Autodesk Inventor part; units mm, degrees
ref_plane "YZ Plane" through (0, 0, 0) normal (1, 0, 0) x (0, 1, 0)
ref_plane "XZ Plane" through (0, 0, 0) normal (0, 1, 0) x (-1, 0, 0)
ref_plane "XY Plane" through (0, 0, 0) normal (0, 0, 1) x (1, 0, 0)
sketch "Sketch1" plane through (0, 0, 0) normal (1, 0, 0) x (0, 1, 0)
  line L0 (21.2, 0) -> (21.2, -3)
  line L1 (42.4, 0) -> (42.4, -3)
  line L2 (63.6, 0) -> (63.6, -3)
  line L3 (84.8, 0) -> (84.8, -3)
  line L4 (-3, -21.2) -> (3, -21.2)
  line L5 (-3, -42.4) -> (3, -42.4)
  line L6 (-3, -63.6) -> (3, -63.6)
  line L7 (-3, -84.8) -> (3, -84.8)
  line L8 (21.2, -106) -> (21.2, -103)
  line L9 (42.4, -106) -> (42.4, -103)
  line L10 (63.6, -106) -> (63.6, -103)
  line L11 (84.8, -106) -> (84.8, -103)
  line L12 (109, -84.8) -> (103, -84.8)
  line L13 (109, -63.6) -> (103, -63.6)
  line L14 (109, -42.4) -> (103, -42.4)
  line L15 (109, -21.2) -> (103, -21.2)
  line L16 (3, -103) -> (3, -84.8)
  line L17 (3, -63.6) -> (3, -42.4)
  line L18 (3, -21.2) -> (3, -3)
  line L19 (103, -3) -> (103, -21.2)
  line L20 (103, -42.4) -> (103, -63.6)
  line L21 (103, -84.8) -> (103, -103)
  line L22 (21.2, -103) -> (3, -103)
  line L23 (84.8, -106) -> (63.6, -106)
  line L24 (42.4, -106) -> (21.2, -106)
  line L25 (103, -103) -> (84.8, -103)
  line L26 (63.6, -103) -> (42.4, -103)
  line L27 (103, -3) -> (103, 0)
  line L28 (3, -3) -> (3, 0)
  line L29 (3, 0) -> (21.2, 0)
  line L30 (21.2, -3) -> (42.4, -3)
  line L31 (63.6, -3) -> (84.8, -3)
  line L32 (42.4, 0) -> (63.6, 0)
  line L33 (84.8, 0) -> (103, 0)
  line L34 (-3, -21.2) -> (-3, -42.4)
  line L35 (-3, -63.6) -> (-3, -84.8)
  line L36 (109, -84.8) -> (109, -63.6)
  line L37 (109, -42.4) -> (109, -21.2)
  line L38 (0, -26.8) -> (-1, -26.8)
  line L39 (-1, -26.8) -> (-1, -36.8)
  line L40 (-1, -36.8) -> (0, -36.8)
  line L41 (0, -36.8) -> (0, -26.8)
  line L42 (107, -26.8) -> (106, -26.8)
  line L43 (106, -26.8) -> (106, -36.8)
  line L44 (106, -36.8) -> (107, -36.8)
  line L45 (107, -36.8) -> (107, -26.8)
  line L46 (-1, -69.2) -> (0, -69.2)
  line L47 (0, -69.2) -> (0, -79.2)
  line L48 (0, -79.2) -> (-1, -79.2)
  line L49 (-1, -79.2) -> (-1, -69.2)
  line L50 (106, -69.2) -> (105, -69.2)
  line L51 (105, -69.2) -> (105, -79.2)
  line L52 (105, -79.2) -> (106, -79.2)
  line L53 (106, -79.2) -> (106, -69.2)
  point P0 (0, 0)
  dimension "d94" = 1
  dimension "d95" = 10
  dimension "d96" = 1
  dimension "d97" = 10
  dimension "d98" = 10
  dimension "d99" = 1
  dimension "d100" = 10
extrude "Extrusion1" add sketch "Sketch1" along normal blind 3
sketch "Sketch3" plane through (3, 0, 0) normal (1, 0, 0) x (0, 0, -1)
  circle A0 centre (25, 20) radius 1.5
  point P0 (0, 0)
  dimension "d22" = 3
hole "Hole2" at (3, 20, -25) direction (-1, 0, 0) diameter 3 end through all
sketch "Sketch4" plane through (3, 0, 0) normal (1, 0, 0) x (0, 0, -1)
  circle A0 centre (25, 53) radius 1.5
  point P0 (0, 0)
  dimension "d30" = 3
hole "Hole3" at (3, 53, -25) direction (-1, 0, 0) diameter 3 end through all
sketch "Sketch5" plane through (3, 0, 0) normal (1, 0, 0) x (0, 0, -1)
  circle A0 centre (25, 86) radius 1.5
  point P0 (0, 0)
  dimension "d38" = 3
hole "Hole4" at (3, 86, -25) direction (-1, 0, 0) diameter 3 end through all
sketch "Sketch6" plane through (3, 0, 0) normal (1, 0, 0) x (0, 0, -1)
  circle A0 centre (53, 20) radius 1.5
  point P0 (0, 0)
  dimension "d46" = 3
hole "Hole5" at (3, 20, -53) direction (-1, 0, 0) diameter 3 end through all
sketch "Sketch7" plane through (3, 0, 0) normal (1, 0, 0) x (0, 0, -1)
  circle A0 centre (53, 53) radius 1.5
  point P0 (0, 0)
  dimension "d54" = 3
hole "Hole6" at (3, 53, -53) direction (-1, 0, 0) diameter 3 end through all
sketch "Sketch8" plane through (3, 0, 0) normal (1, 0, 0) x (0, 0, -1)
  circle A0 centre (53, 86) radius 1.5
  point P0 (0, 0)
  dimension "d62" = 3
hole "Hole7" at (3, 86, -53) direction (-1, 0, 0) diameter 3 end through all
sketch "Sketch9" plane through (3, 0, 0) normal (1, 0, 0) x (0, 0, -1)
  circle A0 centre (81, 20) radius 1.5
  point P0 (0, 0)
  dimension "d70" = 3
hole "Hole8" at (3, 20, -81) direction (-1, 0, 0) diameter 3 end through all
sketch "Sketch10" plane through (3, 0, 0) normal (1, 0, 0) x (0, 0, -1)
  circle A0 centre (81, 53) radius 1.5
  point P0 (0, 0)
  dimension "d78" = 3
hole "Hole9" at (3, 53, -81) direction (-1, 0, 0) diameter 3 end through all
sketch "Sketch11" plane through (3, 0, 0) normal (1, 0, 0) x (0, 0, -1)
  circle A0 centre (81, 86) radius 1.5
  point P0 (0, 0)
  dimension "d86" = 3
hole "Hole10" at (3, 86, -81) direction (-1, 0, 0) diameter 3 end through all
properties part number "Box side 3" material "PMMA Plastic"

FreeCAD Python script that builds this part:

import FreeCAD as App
import Part
import Sketcher

V = App.Vector

doc = App.newDocument("Part")
body = doc.addObject("PartDesign::Body", "Body")

sketch1 = body.newObject("Sketcher::SketchObject", "Sketch")
sketch1.AttachmentSupport = (doc.getObject("YZ_Plane"), [""])
sketch1.MapMode = "FlatFace"
sketch1.addGeometry(Part.LineSegment(V(21.2, -3, 0), V(21.2, 0, 0)), False)
sketch1.addGeometry(Part.LineSegment(V(21.2, 0, 0), V(3, 0, 0)), False)
sketch1.addGeometry(Part.LineSegment(V(3, 0, 0), V(3, -21.2, 0)), False)
sketch1.addGeometry(Part.LineSegment(V(3, -21.2, 0), V(-3, -21.2, 0)), False)
sketch1.addGeometry(Part.LineSegment(V(-3, -21.2, 0), V(-3, -42.4, 0)), False)
sketch1.addGeometry(Part.LineSegment(V(-3, -42.4, 0), V(3, -42.4, 0)), False)
sketch1.addGeometry(Part.LineSegment(V(3, -42.4, 0), V(3, -63.6, 0)), False)
sketch1.addGeometry(Part.LineSegment(V(3, -63.6, 0), V(-3, -63.6, 0)), False)
sketch1.addGeometry(Part.LineSegment(V(-3, -63.6, 0), V(-3, -84.8, 0)), False)
sketch1.addGeometry(Part.LineSegment(V(-3, -84.8, 0), V(3, -84.8, 0)), False)
sketch1.addGeometry(Part.LineSegment(V(3, -84.8, 0), V(3, -103, 0)), False)
sketch1.addGeometry(Part.LineSegment(V(3, -103, 0), V(21.2, -103, 0)), False)
sketch1.addGeometry(Part.LineSegment(V(21.2, -103, 0), V(21.2, -106, 0)), False)
sketch1.addGeometry(Part.LineSegment(V(21.2, -106, 0), V(42.4, -106, 0)), False)
sketch1.addGeometry(Part.LineSegment(V(42.4, -106, 0), V(42.4, -103, 0)), False)
sketch1.addGeometry(Part.LineSegment(V(42.4, -103, 0), V(63.6, -103, 0)), False)
sketch1.addGeometry(Part.LineSegment(V(63.6, -103, 0), V(63.6, -106, 0)), False)
sketch1.addGeometry(Part.LineSegment(V(63.6, -106, 0), V(84.8, -106, 0)), False)
sketch1.addGeometry(Part.LineSegment(V(84.8, -106, 0), V(84.8, -103, 0)), False)
sketch1.addGeometry(Part.LineSegment(V(84.8, -103, 0), V(103, -103, 0)), False)
sketch1.addGeometry(Part.LineSegment(V(103, -103, 0), V(103, -84.8, 0)), False)
sketch1.addGeometry(Part.LineSegment(V(103, -84.8, 0), V(109, -84.8, 0)), False)
sketch1.addGeometry(Part.LineSegment(V(109, -84.8, 0), V(109, -63.6, 0)), False)
sketch1.addGeometry(Part.LineSegment(V(109, -63.6, 0), V(103, -63.6, 0)), False)
sketch1.addGeometry(Part.LineSegment(V(103, -63.6, 0), V(103, -42.4, 0)), False)
sketch1.addGeometry(Part.LineSegment(V(103, -42.4, 0), V(109, -42.4, 0)), False)
sketch1.addGeometry(Part.LineSegment(V(109, -42.4, 0), V(109, -21.2, 0)), False)
sketch1.addGeometry(Part.LineSegment(V(109, -21.2, 0), V(103, -21.2, 0)), False)
sketch1.addGeometry(Part.LineSegment(V(103, -21.2, 0), V(103, 0, 0)), False)
sketch1.addGeometry(Part.LineSegment(V(103, 0, 0), V(84.8, 0, 0)), False)
sketch1.addGeometry(Part.LineSegment(V(84.8, 0, 0), V(84.8, -3, 0)), False)
sketch1.addGeometry(Part.LineSegment(V(84.8, -3, 0), V(63.6, -3, 0)), False)
sketch1.addGeometry(Part.LineSegment(V(63.6, -3, 0), V(63.6, 0, 0)), False)
sketch1.addGeometry(Part.LineSegment(V(63.6, 0, 0), V(42.4, 0, 0)), False)
sketch1.addGeometry(Part.LineSegment(V(42.4, 0, 0), V(42.4, -3, 0)), False)
sketch1.addGeometry(Part.LineSegment(V(42.4, -3, 0), V(21.2, -3, 0)), False)
sketch1.addGeometry(Part.LineSegment(V(-1, -79.2, 0), V(-1, -69.2, 0)), False)
sketch1.addGeometry(Part.LineSegment(V(-1, -69.2, 0), V(0, -69.2, 0)), False)
sketch1.addGeometry(Part.LineSegment(V(0, -69.2, 0), V(0, -79.2, 0)), False)
sketch1.addGeometry(Part.LineSegment(V(0, -79.2, 0), V(-1, -79.2, 0)), False)
sketch1.addGeometry(Part.LineSegment(V(105, -69.2, 0), V(106, -69.2, 0)), False)
sketch1.addGeometry(Part.LineSegment(V(106, -69.2, 0), V(106, -79.2, 0)), False)
sketch1.addGeometry(Part.LineSegment(V(106, -79.2, 0), V(105, -79.2, 0)), False)
sketch1.addGeometry(Part.LineSegment(V(105, -79.2, 0), V(105, -69.2, 0)), False)
sketch1.addGeometry(Part.LineSegment(V(-1, -26.8, 0), V(0, -26.8, 0)), False)
sketch1.addGeometry(Part.LineSegment(V(0, -26.8, 0), V(0, -36.8, 0)), False)
sketch1.addGeometry(Part.LineSegment(V(0, -36.8, 0), V(-1, -36.8, 0)), False)
sketch1.addGeometry(Part.LineSegment(V(-1, -36.8, 0), V(-1, -26.8, 0)), False)
sketch1.addGeometry(Part.LineSegment(V(106, -26.8, 0), V(107, -26.8, 0)), False)
sketch1.addGeometry(Part.LineSegment(V(107, -26.8, 0), V(107, -36.8, 0)), False)
sketch1.addGeometry(Part.LineSegment(V(107, -36.8, 0), V(106, -36.8, 0)), False)
sketch1.addGeometry(Part.LineSegment(V(106, -36.8, 0), V(106, -26.8, 0)), False)
sketch1.addConstraint(Sketcher.Constraint("Coincident", 0, 2, 1, 1))
sketch1.addConstraint(Sketcher.Constraint("Coincident", 1, 2, 2, 1))
sketch1.addConstraint(Sketcher.Constraint("Coincident", 2, 2, 3, 1))
sketch1.addConstraint(Sketcher.Constraint("Coincident", 3, 2, 4, 1))
sketch1.addConstraint(Sketcher.Constraint("Coincident", 4, 2, 5, 1))
sketch1.addConstraint(Sketcher.Constraint("Coincident", 5, 2, 6, 1))
sketch1.addConstraint(Sketcher.Constraint("Coincident", 6, 2, 7, 1))
sketch1.addConstraint(Sketcher.Constraint("Coincident", 7, 2, 8, 1))
sketch1.addConstraint(Sketcher.Constraint("Coincident", 8, 2, 9, 1))
sketch1.addConstraint(Sketcher.Constraint("Coincident", 9, 2, 10, 1))
sketch1.addConstraint(Sketcher.Constraint("Coincident", 10, 2, 11, 1))
sketch1.addConstraint(Sketcher.Constraint("Coincident", 11, 2, 12, 1))
sketch1.addConstraint(Sketcher.Constraint("Coincident", 12, 2, 13, 1))
sketch1.addConstraint(Sketcher.Constraint("Coincident", 13, 2, 14, 1))
sketch1.addConstraint(Sketcher.Constraint("Coincident", 14, 2, 15, 1))
sketch1.addConstraint(Sketcher.Constraint("Coincident", 15, 2, 16, 1))
sketch1.addConstraint(Sketcher.Constraint("Coincident", 16, 2, 17, 1))
sketch1.addConstraint(Sketcher.Constraint("Coincident", 17, 2, 18, 1))
sketch1.addConstraint(Sketcher.Constraint("Coincident", 18, 2, 19, 1))
sketch1.addConstraint(Sketcher.Constraint("Coincident", 19, 2, 20, 1))
sketch1.addConstraint(Sketcher.Constraint("Coincident", 20, 2, 21, 1))
sketch1.addConstraint(Sketcher.Constraint("Coincident", 21, 2, 22, 1))
sketch1.addConstraint(Sketcher.Constraint("Coincident", 22, 2, 23, 1))
sketch1.addConstraint(Sketcher.Constraint("Coincident", 23, 2, 24, 1))
sketch1.addConstraint(Sketcher.Constraint("Coincident", 24, 2, 25, 1))
sketch1.addConstraint(Sketcher.Constraint("Coincident", 25, 2, 26, 1))
sketch1.addConstraint(Sketcher.Constraint("Coincident", 26, 2, 27, 1))
sketch1.addConstraint(Sketcher.Constraint("Coincident", 27, 2, 28, 1))
sketch1.addConstraint(Sketcher.Constraint("Coincident", 28, 2, 29, 1))
sketch1.addConstraint(Sketcher.Constraint("Coincident", 29, 2, 30, 1))
sketch1.addConstraint(Sketcher.Constraint("Coincident", 30, 2, 31, 1))
sketch1.addConstraint(Sketcher.Constraint("Coincident", 31, 2, 32, 1))
sketch1.addConstraint(Sketcher.Constraint("Coincident", 32, 2, 33, 1))
sketch1.addConstraint(Sketcher.Constraint("Coincident", 33, 2, 34, 1))
sketch1.addConstraint(Sketcher.Constraint("Coincident", 34, 2, 35, 1))
sketch1.addConstraint(Sketcher.Constraint("Coincident", 35, 2, 0, 1))
sketch1.addConstraint(Sketcher.Constraint("Coincident", 36, 2, 37, 1))
sketch1.addConstraint(Sketcher.Constraint("Coincident", 37, 2, 38, 1))
sketch1.addConstraint(Sketcher.Constraint("Coincident", 38, 2, 39, 1))
sketch1.addConstraint(Sketcher.Constraint("Coincident", 39, 2, 36, 1))
sketch1.addConstraint(Sketcher.Constraint("Coincident", 40, 2, 41, 1))
sketch1.addConstraint(Sketcher.Constraint("Coincident", 41, 2, 42, 1))
sketch1.addConstraint(Sketcher.Constraint("Coincident", 42, 2, 43, 1))
sketch1.addConstraint(Sketcher.Constraint("Coincident", 43, 2, 40, 1))
sketch1.addConstraint(Sketcher.Constraint("Coincident", 44, 2, 45, 1))
sketch1.addConstraint(Sketcher.Constraint("Coincident", 45, 2, 46, 1))
sketch1.addConstraint(Sketcher.Constraint("Coincident", 46, 2, 47, 1))
sketch1.addConstraint(Sketcher.Constraint("Coincident", 47, 2, 44, 1))
sketch1.addConstraint(Sketcher.Constraint("Coincident", 48, 2, 49, 1))
sketch1.addConstraint(Sketcher.Constraint("Coincident", 49, 2, 50, 1))
sketch1.addConstraint(Sketcher.Constraint("Coincident", 50, 2, 51, 1))
sketch1.addConstraint(Sketcher.Constraint("Coincident", 51, 2, 48, 1))
sketch1.addConstraint(Sketcher.Constraint("Vertical", 0))
sketch1.addConstraint(Sketcher.Constraint("Horizontal", 1))
sketch1.addConstraint(Sketcher.Constraint("Vertical", 2))
sketch1.addConstraint(Sketcher.Constraint("Horizontal", 3))
sketch1.addConstraint(Sketcher.Constraint("Vertical", 4))
sketch1.addConstraint(Sketcher.Constraint("Horizontal", 5))
sketch1.addConstraint(Sketcher.Constraint("Vertical", 6))
sketch1.addConstraint(Sketcher.Constraint("Horizontal", 7))
sketch1.addConstraint(Sketcher.Constraint("Vertical", 8))
sketch1.addConstraint(Sketcher.Constraint("Horizontal", 9))
sketch1.addConstraint(Sketcher.Constraint("Vertical", 10))
sketch1.addConstraint(Sketcher.Constraint("Horizontal", 11))
sketch1.addConstraint(Sketcher.Constraint("Vertical", 12))
sketch1.addConstraint(Sketcher.Constraint("Horizontal", 13))
sketch1.addConstraint(Sketcher.Constraint("Vertical", 14))
sketch1.addConstraint(Sketcher.Constraint("Horizontal", 15))
sketch1.addConstraint(Sketcher.Constraint("Vertical", 16))
sketch1.addConstraint(Sketcher.Constraint("Horizontal", 17))
sketch1.addConstraint(Sketcher.Constraint("Vertical", 18))
sketch1.addConstraint(Sketcher.Constraint("Horizontal", 19))
sketch1.addConstraint(Sketcher.Constraint("Vertical", 20))
sketch1.addConstraint(Sketcher.Constraint("Horizontal", 21))
sketch1.addConstraint(Sketcher.Constraint("Vertical", 22))
sketch1.addConstraint(Sketcher.Constraint("Horizontal", 23))
sketch1.addConstraint(Sketcher.Constraint("Vertical", 24))
sketch1.addConstraint(Sketcher.Constraint("Horizontal", 25))
sketch1.addConstraint(Sketcher.Constraint("Vertical", 26))
sketch1.addConstraint(Sketcher.Constraint("Horizontal", 27))
sketch1.addConstraint(Sketcher.Constraint("Vertical", 28))
sketch1.addConstraint(Sketcher.Constraint("Horizontal", 29))
sketch1.addConstraint(Sketcher.Constraint("Vertical", 30))
sketch1.addConstraint(Sketcher.Constraint("Horizontal", 31))
sketch1.addConstraint(Sketcher.Constraint("Vertical", 32))
sketch1.addConstraint(Sketcher.Constraint("Horizontal", 33))
sketch1.addConstraint(Sketcher.Constraint("Vertical", 34))
sketch1.addConstraint(Sketcher.Constraint("Horizontal", 35))
sketch1.addConstraint(Sketcher.Constraint("Vertical", 36))
sketch1.addConstraint(Sketcher.Constraint("Horizontal", 37))
sketch1.addConstraint(Sketcher.Constraint("Vertical", 38))
sketch1.addConstraint(Sketcher.Constraint("Horizontal", 39))
sketch1.addConstraint(Sketcher.Constraint("Horizontal", 40))
sketch1.addConstraint(Sketcher.Constraint("Vertical", 41))
sketch1.addConstraint(Sketcher.Constraint("Horizontal", 42))
sketch1.addConstraint(Sketcher.Constraint("Vertical", 43))
sketch1.addConstraint(Sketcher.Constraint("Horizontal", 44))
sketch1.addConstraint(Sketcher.Constraint("Vertical", 45))
sketch1.addConstraint(Sketcher.Constraint("Horizontal", 46))
sketch1.addConstraint(Sketcher.Constraint("Vertical", 47))
sketch1.addConstraint(Sketcher.Constraint("Horizontal", 48))
sketch1.addConstraint(Sketcher.Constraint("Vertical", 49))
sketch1.addConstraint(Sketcher.Constraint("Horizontal", 50))
sketch1.addConstraint(Sketcher.Constraint("Vertical", 51))
sketch1.addConstraint(Sketcher.Constraint("PointOnObject", 0, 2, -1))
sketch1.addConstraint(Sketcher.Constraint("PointOnObject", 28, 2, -1))
sketch1.addConstraint(Sketcher.Constraint("PointOnObject", 32, 2, -1))
sketch1.addConstraint(Sketcher.Constraint("PointOnObject", 37, 2, -2))
sketch1.addConstraint(Sketcher.Constraint("PointOnObject", 44, 2, -2))
sketch1.addConstraint(Sketcher.Constraint("Horizontal", 11, 2, 14, 2))
sketch1.addConstraint(Sketcher.Constraint("Horizontal", 13, 2, 16, 2))
sketch1.addConstraint(Sketcher.Constraint("Horizontal", 15, 2, 18, 2))
sketch1.addConstraint(Sketcher.Constraint("Horizontal", 9, 2, 20, 2))
sketch1.addConstraint(Sketcher.Constraint("Horizontal", 7, 2, 22, 2))
sketch1.addConstraint(Sketcher.Constraint("Horizontal", 5, 2, 24, 2))
sketch1.addConstraint(Sketcher.Constraint("Horizontal", 3, 2, 26, 2))
sketch1.addConstraint(Sketcher.Constraint("Horizontal", 31, 2, 34, 2))
sketch1.addConstraint(Sketcher.Constraint("Horizontal", 37, 2, 40, 2))
sketch1.addConstraint(Sketcher.Constraint("Horizontal", 39, 2, 41, 2))
sketch1.addConstraint(Sketcher.Constraint("Horizontal", 47, 2, 48, 2))
sketch1.addConstraint(Sketcher.Constraint("Horizontal", 46, 2, 49, 2))
sketch1.addConstraint(Sketcher.Constraint("Vertical", 2, 2, 5, 2))
sketch1.addConstraint(Sketcher.Constraint("Vertical", 4, 2, 7, 2))
sketch1.addConstraint(Sketcher.Constraint("Vertical", 6, 2, 9, 2))
sketch1.addConstraint(Sketcher.Constraint("Vertical", 0, 2, 11, 2))
sketch1.addConstraint(Sketcher.Constraint("Vertical", 20, 2, 23, 2))
sketch1.addConstraint(Sketcher.Constraint("Vertical", 22, 2, 25, 2))
sketch1.addConstraint(Sketcher.Constraint("Vertical", 24, 2, 27, 2))
sketch1.addConstraint(Sketcher.Constraint("Vertical", 18, 2, 29, 2))
sketch1.addConstraint(Sketcher.Constraint("Vertical", 16, 2, 31, 2))
sketch1.addConstraint(Sketcher.Constraint("Vertical", 14, 2, 33, 2))
sketch1.addConstraint(Sketcher.Constraint("Vertical", 39, 2, 46, 2))
sketch1.addConstraint(Sketcher.Constraint("Vertical", 41, 2, 50, 2))
sketch1.addConstraint(Sketcher.Constraint("Equal", 13, 15))
sketch1.addConstraint(Sketcher.Constraint("Equal", 15, 17))
sketch1.addConstraint(Sketcher.Constraint("Equal", 11, 19))
sketch1.addConstraint(Sketcher.Constraint("Equal", 9, 21))
sketch1.addConstraint(Sketcher.Constraint("Equal", 39, 40))
sketch1.addConstraint(Sketcher.Constraint("Equal", 46, 48))
sketch1.addConstraint(Sketcher.Constraint("Equal", 35, 2))
sketch1.addConstraint(Sketcher.Constraint("Equal", 2, 4))
sketch1.addConstraint(Sketcher.Constraint("Equal", 4, 6))
sketch1.addConstraint(Sketcher.Constraint("Equal", 6, 8))
sketch1.addConstraint(Sketcher.Constraint("Equal", 29, 10))
sketch1.addConstraint(Sketcher.Constraint("Equal", 0, 12))
sketch1.addConstraint(Sketcher.Constraint("Equal", 43, 45))
sketch1.addConstraint(Sketcher.Constraint("DistanceX", 37, 1, 37, 2, 1.0))
sketch1.addConstraint(Sketcher.Constraint("DistanceY", 36, 1, 36, 2, 10.0))
sketch1.addConstraint(Sketcher.Constraint("DistanceX", 3, 2, 3, 1, 6.0))
sketch1.addConstraint(Sketcher.Constraint("DistanceY", 0, 1, 0, 2, 3.0))
sketch1.addConstraint(Sketcher.Constraint("DistanceX", 1, 2, 1, 1, 18.2))
sketch1.addConstraint(Sketcher.Constraint("DistanceX", 13, 1, 13, 2, 21.2))
sketch1.addConstraint(Sketcher.Constraint("DistanceX", -1, 1, 1, 2, 3.0))
sketch1.addConstraint(Sketcher.Constraint("DistanceX", -1, 1, 40, 2, 106.0))
sketch1.addConstraint(Sketcher.Constraint("DistanceY", 36, 2, -1, 1, 69.2))
sketch1.addConstraint(Sketcher.Constraint("DistanceY", 44, 2, -1, 1, 26.8))
pad1 = body.newObject("PartDesign::Pad", "Pad")
pad1.Profile = sketch1
pad1.Length = 3

sketch2 = body.newObject("Sketcher::SketchObject", "Sketch001")
sketch2.AttachmentSupport = (doc.getObject("YZ_Plane"), [""])
sketch2.MapMode = "FlatFace"
sketch2.AttachmentOffset = App.Placement(V(0, 0, 3), App.Rotation())
sketch2.addGeometry(Part.Circle(V(20, -25, 0), V(0, 0, 1), 1.5), False)
sketch2.addConstraint(Sketcher.Constraint("Diameter", 0, 3.0))
sketch2.addConstraint(Sketcher.Constraint("DistanceX", -1, 1, 0, 3, 20.0))
sketch2.addConstraint(Sketcher.Constraint("DistanceY", 0, 3, -1, 1, 25.0))
doc.recompute()
hole = body.newObject("PartDesign::Hole", "Hole")
hole.Profile = sketch2
hole.ThreadType = "None"
hole.Diameter = 3
hole.DepthType = "ThroughAll"

sketch3 = body.newObject("Sketcher::SketchObject", "Sketch002")
sketch3.AttachmentSupport = (doc.getObject("YZ_Plane"), [""])
sketch3.MapMode = "FlatFace"
sketch3.AttachmentOffset = App.Placement(V(0, 0, 3), App.Rotation())
sketch3.addGeometry(Part.Circle(V(53, -25, 0), V(0, 0, 1), 1.5), False)
sketch3.addConstraint(Sketcher.Constraint("Diameter", 0, 3.0))
sketch3.addConstraint(Sketcher.Constraint("DistanceX", -1, 1, 0, 3, 53.0))
sketch3.addConstraint(Sketcher.Constraint("DistanceY", 0, 3, -1, 1, 25.0))
doc.recompute()
hole2 = body.newObject("PartDesign::Hole", "Hole001")
hole2.Profile = sketch3
hole2.ThreadType = "None"
hole2.Diameter = 3
hole2.DepthType = "ThroughAll"

sketch4 = body.newObject("Sketcher::SketchObject", "Sketch003")
sketch4.AttachmentSupport = (doc.getObject("YZ_Plane"), [""])
sketch4.MapMode = "FlatFace"
sketch4.AttachmentOffset = App.Placement(V(0, 0, 3), App.Rotation())
sketch4.addGeometry(Part.Circle(V(86, -25, 0), V(0, 0, 1), 1.5), False)
sketch4.addConstraint(Sketcher.Constraint("Diameter", 0, 3.0))
sketch4.addConstraint(Sketcher.Constraint("DistanceX", -1, 1, 0, 3, 86.0))
sketch4.addConstraint(Sketcher.Constraint("DistanceY", 0, 3, -1, 1, 25.0))
doc.recompute()
hole3 = body.newObject("PartDesign::Hole", "Hole002")
hole3.Profile = sketch4
hole3.ThreadType = "None"
hole3.Diameter = 3
hole3.DepthType = "ThroughAll"

sketch5 = body.newObject("Sketcher::SketchObject", "Sketch004")
sketch5.AttachmentSupport = (doc.getObject("YZ_Plane"), [""])
sketch5.MapMode = "FlatFace"
sketch5.AttachmentOffset = App.Placement(V(0, 0, 3), App.Rotation())
sketch5.addGeometry(Part.Circle(V(20, -53, 0), V(0, 0, 1), 1.5), False)
sketch5.addConstraint(Sketcher.Constraint("Diameter", 0, 3.0))
sketch5.addConstraint(Sketcher.Constraint("DistanceX", -1, 1, 0, 3, 20.0))
sketch5.addConstraint(Sketcher.Constraint("DistanceY", 0, 3, -1, 1, 53.0))
doc.recompute()
hole4 = body.newObject("PartDesign::Hole", "Hole003")
hole4.Profile = sketch5
hole4.ThreadType = "None"
hole4.Diameter = 3
hole4.DepthType = "ThroughAll"

sketch6 = body.newObject("Sketcher::SketchObject", "Sketch005")
sketch6.AttachmentSupport = (doc.getObject("YZ_Plane"), [""])
sketch6.MapMode = "FlatFace"
sketch6.AttachmentOffset = App.Placement(V(0, 0, 3), App.Rotation())
sketch6.addGeometry(Part.Circle(V(53, -53, 0), V(0, 0, 1), 1.5), False)
sketch6.addConstraint(Sketcher.Constraint("Diameter", 0, 3.0))
sketch6.addConstraint(Sketcher.Constraint("DistanceX", -1, 1, 0, 3, 53.0))
sketch6.addConstraint(Sketcher.Constraint("DistanceY", 0, 3, -1, 1, 53.0))
doc.recompute()
hole5 = body.newObject("PartDesign::Hole", "Hole004")
hole5.Profile = sketch6
hole5.ThreadType = "None"
hole5.Diameter = 3
hole5.DepthType = "ThroughAll"

sketch7 = body.newObject("Sketcher::SketchObject", "Sketch006")
sketch7.AttachmentSupport = (doc.getObject("YZ_Plane"), [""])
sketch7.MapMode = "FlatFace"
sketch7.AttachmentOffset = App.Placement(V(0, 0, 3), App.Rotation())
sketch7.addGeometry(Part.Circle(V(86, -53, 0), V(0, 0, 1), 1.5), False)
sketch7.addConstraint(Sketcher.Constraint("Diameter", 0, 3.0))
sketch7.addConstraint(Sketcher.Constraint("DistanceX", -1, 1, 0, 3, 86.0))
sketch7.addConstraint(Sketcher.Constraint("DistanceY", 0, 3, -1, 1, 53.0))
doc.recompute()
hole6 = body.newObject("PartDesign::Hole", "Hole005")
hole6.Profile = sketch7
hole6.ThreadType = "None"
hole6.Diameter = 3
hole6.DepthType = "ThroughAll"

sketch8 = body.newObject("Sketcher::SketchObject", "Sketch007")
sketch8.AttachmentSupport = (doc.getObject("YZ_Plane"), [""])
sketch8.MapMode = "FlatFace"
sketch8.AttachmentOffset = App.Placement(V(0, 0, 3), App.Rotation())
sketch8.addGeometry(Part.Circle(V(20, -81, 0), V(0, 0, 1), 1.5), False)
sketch8.addConstraint(Sketcher.Constraint("Diameter", 0, 3.0))
sketch8.addConstraint(Sketcher.Constraint("DistanceX", -1, 1, 0, 3, 20.0))
sketch8.addConstraint(Sketcher.Constraint("DistanceY", 0, 3, -1, 1, 81.0))
doc.recompute()
hole7 = body.newObject("PartDesign::Hole", "Hole006")
hole7.Profile = sketch8
hole7.ThreadType = "None"
hole7.Diameter = 3
hole7.DepthType = "ThroughAll"

sketch9 = body.newObject("Sketcher::SketchObject", "Sketch008")
sketch9.AttachmentSupport = (doc.getObject("YZ_Plane"), [""])
sketch9.MapMode = "FlatFace"
sketch9.AttachmentOffset = App.Placement(V(0, 0, 3), App.Rotation())
sketch9.addGeometry(Part.Circle(V(53, -81, 0), V(0, 0, 1), 1.5), False)
sketch9.addConstraint(Sketcher.Constraint("Diameter", 0, 3.0))
sketch9.addConstraint(Sketcher.Constraint("DistanceX", -1, 1, 0, 3, 53.0))
sketch9.addConstraint(Sketcher.Constraint("DistanceY", 0, 3, -1, 1, 81.0))
doc.recompute()
hole8 = body.newObject("PartDesign::Hole", "Hole007")
hole8.Profile = sketch9
hole8.ThreadType = "None"
hole8.Diameter = 3
hole8.DepthType = "ThroughAll"

sketch10 = body.newObject("Sketcher::SketchObject", "Sketch009")
sketch10.AttachmentSupport = (doc.getObject("YZ_Plane"), [""])
sketch10.MapMode = "FlatFace"
sketch10.AttachmentOffset = App.Placement(V(0, 0, 3), App.Rotation())
sketch10.addGeometry(Part.Circle(V(86, -81, 0), V(0, 0, 1), 1.5), False)
sketch10.addConstraint(Sketcher.Constraint("Diameter", 0, 3.0))
sketch10.addConstraint(Sketcher.Constraint("DistanceX", -1, 1, 0, 3, 86.0))
sketch10.addConstraint(Sketcher.Constraint("DistanceY", 0, 3, -1, 1, 81.0))
doc.recompute()
hole9 = body.newObject("PartDesign::Hole", "Hole008")
hole9.Profile = sketch10
hole9.ThreadType = "None"
hole9.Diameter = 3
hole9.DepthType = "ThroughAll"

doc.recompute()
